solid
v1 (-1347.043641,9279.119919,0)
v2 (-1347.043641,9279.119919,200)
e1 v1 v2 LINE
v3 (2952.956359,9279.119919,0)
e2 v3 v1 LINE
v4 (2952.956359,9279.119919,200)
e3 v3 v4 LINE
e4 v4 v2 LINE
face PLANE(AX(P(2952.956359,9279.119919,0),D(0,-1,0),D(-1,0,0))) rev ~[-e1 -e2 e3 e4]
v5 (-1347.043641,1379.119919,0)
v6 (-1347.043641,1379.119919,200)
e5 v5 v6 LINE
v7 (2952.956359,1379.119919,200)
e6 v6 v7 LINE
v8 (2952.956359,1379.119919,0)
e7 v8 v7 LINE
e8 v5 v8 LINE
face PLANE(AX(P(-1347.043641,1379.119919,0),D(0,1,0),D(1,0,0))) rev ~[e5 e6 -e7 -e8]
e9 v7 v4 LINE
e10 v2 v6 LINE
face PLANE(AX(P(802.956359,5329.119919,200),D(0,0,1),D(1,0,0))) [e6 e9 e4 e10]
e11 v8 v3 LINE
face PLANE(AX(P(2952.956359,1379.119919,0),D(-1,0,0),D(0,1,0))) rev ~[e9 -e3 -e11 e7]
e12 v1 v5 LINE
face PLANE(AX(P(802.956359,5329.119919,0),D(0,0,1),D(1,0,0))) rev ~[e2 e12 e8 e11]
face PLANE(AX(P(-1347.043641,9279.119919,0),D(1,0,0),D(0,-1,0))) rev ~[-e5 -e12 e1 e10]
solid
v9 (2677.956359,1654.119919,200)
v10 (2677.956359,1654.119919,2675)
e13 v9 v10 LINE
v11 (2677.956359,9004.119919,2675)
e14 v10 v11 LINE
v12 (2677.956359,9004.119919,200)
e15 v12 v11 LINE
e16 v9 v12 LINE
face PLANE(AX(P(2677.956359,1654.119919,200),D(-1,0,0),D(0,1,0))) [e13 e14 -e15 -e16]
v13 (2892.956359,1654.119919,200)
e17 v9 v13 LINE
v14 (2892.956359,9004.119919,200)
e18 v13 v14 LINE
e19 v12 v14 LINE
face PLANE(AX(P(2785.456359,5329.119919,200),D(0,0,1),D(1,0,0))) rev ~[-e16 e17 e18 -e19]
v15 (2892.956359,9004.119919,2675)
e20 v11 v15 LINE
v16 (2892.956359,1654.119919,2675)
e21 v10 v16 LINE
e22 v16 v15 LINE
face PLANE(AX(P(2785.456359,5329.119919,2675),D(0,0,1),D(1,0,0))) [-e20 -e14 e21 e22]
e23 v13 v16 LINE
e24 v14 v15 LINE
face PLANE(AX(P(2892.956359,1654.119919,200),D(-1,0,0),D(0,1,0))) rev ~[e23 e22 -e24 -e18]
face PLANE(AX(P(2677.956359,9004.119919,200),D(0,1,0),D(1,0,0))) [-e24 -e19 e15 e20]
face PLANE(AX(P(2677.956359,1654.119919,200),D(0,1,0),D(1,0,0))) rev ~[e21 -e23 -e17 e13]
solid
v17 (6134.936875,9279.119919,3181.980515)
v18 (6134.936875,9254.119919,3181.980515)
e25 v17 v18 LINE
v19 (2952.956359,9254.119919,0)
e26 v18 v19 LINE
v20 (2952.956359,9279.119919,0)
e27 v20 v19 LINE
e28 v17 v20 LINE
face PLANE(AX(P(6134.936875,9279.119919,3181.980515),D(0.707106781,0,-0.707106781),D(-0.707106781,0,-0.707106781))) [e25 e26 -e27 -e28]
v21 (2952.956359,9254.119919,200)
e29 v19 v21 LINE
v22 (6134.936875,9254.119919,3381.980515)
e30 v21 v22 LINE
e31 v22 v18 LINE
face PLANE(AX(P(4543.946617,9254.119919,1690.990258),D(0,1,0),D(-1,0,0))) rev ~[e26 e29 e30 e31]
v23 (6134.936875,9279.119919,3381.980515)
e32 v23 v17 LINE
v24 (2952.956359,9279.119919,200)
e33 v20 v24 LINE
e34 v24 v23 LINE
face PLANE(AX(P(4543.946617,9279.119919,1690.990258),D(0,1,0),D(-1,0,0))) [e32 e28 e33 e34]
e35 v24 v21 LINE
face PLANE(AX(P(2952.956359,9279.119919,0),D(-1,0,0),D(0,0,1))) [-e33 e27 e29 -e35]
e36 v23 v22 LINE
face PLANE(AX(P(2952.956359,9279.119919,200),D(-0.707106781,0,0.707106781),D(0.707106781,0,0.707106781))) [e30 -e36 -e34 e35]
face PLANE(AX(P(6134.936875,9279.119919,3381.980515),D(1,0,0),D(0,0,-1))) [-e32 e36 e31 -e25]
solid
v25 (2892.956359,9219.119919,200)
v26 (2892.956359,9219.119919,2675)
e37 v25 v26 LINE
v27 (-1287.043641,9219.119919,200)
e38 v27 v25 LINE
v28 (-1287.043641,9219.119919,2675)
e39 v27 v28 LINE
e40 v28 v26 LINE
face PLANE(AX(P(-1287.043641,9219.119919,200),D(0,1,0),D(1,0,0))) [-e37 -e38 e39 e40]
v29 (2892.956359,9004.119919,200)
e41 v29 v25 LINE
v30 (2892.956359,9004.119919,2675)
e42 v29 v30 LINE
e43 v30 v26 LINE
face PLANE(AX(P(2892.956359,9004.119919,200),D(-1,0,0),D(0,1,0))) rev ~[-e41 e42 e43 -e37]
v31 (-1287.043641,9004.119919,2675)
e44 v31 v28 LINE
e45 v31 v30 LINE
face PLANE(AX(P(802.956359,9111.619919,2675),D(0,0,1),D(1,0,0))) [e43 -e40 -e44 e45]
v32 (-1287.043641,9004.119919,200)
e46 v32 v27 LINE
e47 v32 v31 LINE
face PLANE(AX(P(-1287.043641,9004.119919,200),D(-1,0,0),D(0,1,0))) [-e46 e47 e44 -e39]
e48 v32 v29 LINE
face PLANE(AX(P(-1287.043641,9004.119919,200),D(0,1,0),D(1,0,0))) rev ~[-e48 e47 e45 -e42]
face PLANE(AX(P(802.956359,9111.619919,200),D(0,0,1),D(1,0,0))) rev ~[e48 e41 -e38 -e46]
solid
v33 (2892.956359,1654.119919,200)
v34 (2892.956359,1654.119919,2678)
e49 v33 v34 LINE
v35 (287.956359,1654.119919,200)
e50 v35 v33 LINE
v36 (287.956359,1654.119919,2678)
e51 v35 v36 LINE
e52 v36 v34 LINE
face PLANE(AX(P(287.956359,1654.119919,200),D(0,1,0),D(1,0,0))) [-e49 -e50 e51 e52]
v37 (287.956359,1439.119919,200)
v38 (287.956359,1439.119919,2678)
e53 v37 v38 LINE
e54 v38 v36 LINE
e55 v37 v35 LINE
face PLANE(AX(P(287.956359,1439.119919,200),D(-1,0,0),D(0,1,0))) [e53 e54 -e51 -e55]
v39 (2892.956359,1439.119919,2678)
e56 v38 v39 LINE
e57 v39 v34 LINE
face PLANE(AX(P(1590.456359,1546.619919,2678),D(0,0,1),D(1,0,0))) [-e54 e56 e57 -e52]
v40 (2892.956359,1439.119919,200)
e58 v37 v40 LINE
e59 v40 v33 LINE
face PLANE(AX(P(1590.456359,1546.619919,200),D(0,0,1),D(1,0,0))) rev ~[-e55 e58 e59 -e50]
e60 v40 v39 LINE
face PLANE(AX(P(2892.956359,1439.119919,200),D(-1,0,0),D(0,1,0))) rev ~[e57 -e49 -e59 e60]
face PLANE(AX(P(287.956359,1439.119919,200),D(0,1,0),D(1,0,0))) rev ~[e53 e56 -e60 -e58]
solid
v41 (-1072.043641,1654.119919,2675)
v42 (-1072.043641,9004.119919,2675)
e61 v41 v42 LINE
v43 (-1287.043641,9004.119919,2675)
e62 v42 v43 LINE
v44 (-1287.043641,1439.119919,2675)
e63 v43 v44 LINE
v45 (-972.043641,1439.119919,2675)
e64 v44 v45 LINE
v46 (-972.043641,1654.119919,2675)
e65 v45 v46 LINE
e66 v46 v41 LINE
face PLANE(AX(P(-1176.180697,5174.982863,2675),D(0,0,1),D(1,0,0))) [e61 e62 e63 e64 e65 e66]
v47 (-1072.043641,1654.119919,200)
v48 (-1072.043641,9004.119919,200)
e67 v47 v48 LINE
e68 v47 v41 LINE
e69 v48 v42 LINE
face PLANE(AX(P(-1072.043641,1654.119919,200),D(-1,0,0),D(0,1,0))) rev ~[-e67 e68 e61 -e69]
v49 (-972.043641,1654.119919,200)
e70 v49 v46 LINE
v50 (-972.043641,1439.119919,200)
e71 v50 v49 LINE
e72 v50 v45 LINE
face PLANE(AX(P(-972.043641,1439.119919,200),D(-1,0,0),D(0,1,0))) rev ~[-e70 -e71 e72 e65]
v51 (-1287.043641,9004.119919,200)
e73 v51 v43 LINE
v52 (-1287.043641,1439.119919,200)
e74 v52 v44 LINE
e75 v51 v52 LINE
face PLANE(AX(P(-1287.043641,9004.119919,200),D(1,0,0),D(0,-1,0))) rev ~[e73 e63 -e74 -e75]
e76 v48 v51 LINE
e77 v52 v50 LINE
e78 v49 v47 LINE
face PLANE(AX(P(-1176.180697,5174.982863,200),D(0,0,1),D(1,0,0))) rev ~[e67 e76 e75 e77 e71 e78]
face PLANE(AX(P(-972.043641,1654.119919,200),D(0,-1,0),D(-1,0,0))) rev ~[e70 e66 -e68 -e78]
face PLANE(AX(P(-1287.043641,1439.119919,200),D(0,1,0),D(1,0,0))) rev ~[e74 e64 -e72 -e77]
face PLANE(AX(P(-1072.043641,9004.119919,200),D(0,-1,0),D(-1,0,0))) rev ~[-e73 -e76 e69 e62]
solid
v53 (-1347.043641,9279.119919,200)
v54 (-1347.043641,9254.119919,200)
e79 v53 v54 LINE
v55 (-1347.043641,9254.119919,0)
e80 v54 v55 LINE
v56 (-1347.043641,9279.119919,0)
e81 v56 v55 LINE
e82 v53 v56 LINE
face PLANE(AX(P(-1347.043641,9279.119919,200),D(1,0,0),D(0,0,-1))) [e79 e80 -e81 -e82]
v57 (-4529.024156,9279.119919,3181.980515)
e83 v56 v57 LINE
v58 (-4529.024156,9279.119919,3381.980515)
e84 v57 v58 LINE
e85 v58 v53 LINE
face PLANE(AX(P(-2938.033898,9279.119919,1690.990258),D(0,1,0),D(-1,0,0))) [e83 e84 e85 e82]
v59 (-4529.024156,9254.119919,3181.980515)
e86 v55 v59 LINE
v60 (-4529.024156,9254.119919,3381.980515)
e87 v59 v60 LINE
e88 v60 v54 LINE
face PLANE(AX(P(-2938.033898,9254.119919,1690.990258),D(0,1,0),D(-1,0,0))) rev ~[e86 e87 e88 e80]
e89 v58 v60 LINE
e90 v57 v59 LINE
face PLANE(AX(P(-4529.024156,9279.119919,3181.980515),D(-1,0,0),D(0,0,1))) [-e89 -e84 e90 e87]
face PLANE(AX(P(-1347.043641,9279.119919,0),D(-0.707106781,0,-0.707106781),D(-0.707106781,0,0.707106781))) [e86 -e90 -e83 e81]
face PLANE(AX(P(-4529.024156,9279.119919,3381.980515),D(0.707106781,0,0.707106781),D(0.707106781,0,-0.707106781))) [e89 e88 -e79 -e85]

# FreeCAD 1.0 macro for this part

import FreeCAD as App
import Part
import Sketcher
Q = App.Units.Quantity


def add_polygon(sketch, points):
    """Adds a closed chain of lines whose ends are joined by coincident constraints."""
    first, n = sketch.GeometryCount, len(points)
    for a, b in zip(points, points[1:] + points[:1]):
        sketch.addGeometry(Part.LineSegment(App.Vector(*a, 0), App.Vector(*b, 0)), False)
    for i in range(n):
        sketch.addConstraint(Sketcher.Constraint("Coincident", first + i, 2, first + (i + 1) % n, 1))

doc = App.newDocument("Part")
body = doc.addObject("PartDesign::Body", "Body")

sketch1 = body.newObject("Sketcher::SketchObject", "Sketch")
sketch1.AttachmentSupport = (doc.getObject("XY_Plane"), [""])
sketch1.MapMode = "FlatFace"
add_polygon(sketch1, [(-1347.043641, 1379.119919), (2952.956359, 1379.119919), (2952.956359, 9279.119919), (-1347.043641, 9279.119919)])
sketch1.addConstraint([
    Sketcher.Constraint("Horizontal", 0),
    Sketcher.Constraint("Vertical", 1),
    Sketcher.Constraint("Horizontal", 2),
    Sketcher.Constraint("Vertical", 3),
    Sketcher.Constraint("DistanceX", 0, 1, 0, 2, Q("4300 mm")),
    Sketcher.Constraint("DistanceY", 1, 1, 1, 2, Q("7900 mm")),
    Sketcher.Constraint("DistanceX", -1, 1, 0, 2, Q("2952.956359 mm")),
    Sketcher.Constraint("DistanceY", -1, 1, 0, 2, Q("1379.119919 mm")),
])
pad1 = body.newObject("PartDesign::Pad", "Pad")
pad1.Profile = sketch1
pad1.Length = 200
body2 = doc.addObject("PartDesign::Body", "Body001")

sketch2 = body2.newObject("Sketcher::SketchObject", "Sketch001")
sketch2.AttachmentSupport = (doc.getObject("XY_Plane001"), [""])
sketch2.MapMode = "FlatFace"
sketch2.AttachmentOffset = App.Placement(App.Vector(0, 0, 200), App.Rotation())
add_polygon(sketch2, [(2677.956359, 9004.119919), (2677.956359, 1654.119919), (2892.956359, 1654.119919), (2892.956359, 9004.119919)])
sketch2.addConstraint([
    Sketcher.Constraint("Vertical", 0),
    Sketcher.Constraint("Horizontal", 1),
    Sketcher.Constraint("Vertical", 2),
    Sketcher.Constraint("Horizontal", 3),
    Sketcher.Constraint("DistanceX", 1, 1, 1, 2, Q("215 mm")),
    Sketcher.Constraint("DistanceY", 0, 2, 0, 1, Q("7350 mm")),
    Sketcher.Constraint("DistanceX", -1, 1, 0, 2, Q("2677.956359 mm")),
    Sketcher.Constraint("DistanceY", -1, 1, 0, 2, Q("1654.119919 mm")),
])
pad2 = body2.newObject("PartDesign::Pad", "Pad001")
pad2.Profile = sketch2
pad2.Length = 2475
body3 = doc.addObject("PartDesign::Body", "Body002")

sketch3 = body3.newObject("Sketcher::SketchObject", "Sketch002")
sketch3.AttachmentSupport = (doc.getObject("XY_Plane002"), [""])
sketch3.MapMode = "FlatFace"
sketch3.AttachmentOffset = App.Placement(App.Vector(0, 0, 200), App.Rotation())
add_polygon(sketch3, [(-1072.043641, 9004.119919), (-1287.043641, 9004.119919), (-1287.043641, 1439.119919), (-972.043641, 1439.119919), (-972.043641, 1654.119919), (-1072.043641, 1654.119919)])
sketch3.addConstraint([
    Sketcher.Constraint("Horizontal", 0),
    Sketcher.Constraint("Vertical", 1),
    Sketcher.Constraint("Horizontal", 2),
    Sketcher.Constraint("Vertical", 3),
    Sketcher.Constraint("Horizontal", 4),
    Sketcher.Constraint("Vertical", 5),
    Sketcher.Constraint("Equal", 0, 3),
    Sketcher.Constraint("DistanceX", 0, 2, 0, 1, Q("215 mm")),
    Sketcher.Constraint("DistanceX", 2, 1, 2, 2, Q("315 mm")),
    Sketcher.Constraint("DistanceY", 1, 2, 1, 1, Q("7565 mm")),
    Sketcher.Constraint("DistanceX", 0, 2, -1, 1, Q("1287.043641 mm")),
    Sketcher.Constraint("DistanceY", -1, 1, 0, 2, Q("9004.119919 mm")),
])
pad3 = body3.newObject("PartDesign::Pad", "Pad002")
pad3.Profile = sketch3
pad3.Length = 2475
body4 = doc.addObject("PartDesign::Body", "Body003")

sketch4 = body4.newObject("Sketcher::SketchObject", "Sketch003")
sketch4.AttachmentSupport = (doc.getObject("XY_Plane003"), [""])
sketch4.MapMode = "FlatFace"
sketch4.AttachmentOffset = App.Placement(App.Vector(0, 0, 200), App.Rotation())
add_polygon(sketch4, [(-1287.043641, 9219.119919), (-1287.043641, 9004.119919), (2892.956359, 9004.119919), (2892.956359, 9219.119919)])
sketch4.addConstraint([
    Sketcher.Constraint("Vertical", 0),
    Sketcher.Constraint("Horizontal", 1),
    Sketcher.Constraint("Vertical", 2),
    Sketcher.Constraint("Horizontal", 3),
    Sketcher.Constraint("DistanceX", 1, 1, 1, 2, Q("4180 mm")),
    Sketcher.Constraint("DistanceY", 0, 2, 0, 1, Q("215 mm")),
    Sketcher.Constraint("DistanceX", 0, 2, -1, 1, Q("1287.043641 mm")),
    Sketcher.Constraint("DistanceY", -1, 1, 0, 2, Q("9004.119919 mm")),
])
pad4 = body4.newObject("PartDesign::Pad", "Pad003")
pad4.Profile = sketch4
pad4.Length = 2475
body5 = doc.addObject("PartDesign::Body", "Body004")

sketch5 = body5.newObject("Sketcher::SketchObject", "Sketch004")
sketch5.AttachmentSupport = (doc.getObject("XZ_Plane004"), [""])
sketch5.MapMode = "FlatFace"
sketch5.AttachmentOffset = App.Placement(App.Vector(0, 0, -9279.119919), App.Rotation())
add_polygon(sketch5, [(6134.936875, 3181.980515), (2952.956359, 0), (2952.956359, 200), (6134.936875, 3381.980515)])
sketch5.addConstraint([
    Sketcher.Constraint("Vertical", 1),
    Sketcher.Constraint("Vertical", 3),
    Sketcher.Constraint("PointOnObject", 0, 2, -1),
    Sketcher.Constraint("Parallel", 0, 2),
    Sketcher.Constraint("DistanceY", 1, 1, 1, 2, Q("200 mm")),
    Sketcher.Constraint("Angle", 0, Q("-135 deg")),
    Sketcher.Constraint("Distance", 0, Q("4500 mm")),
    Sketcher.Constraint("DistanceX", -1, 1, 0, 2, Q("2952.956359 mm")),
])
pad5 = body5.newObject("PartDesign::Pad", "Pad004")
pad5.Profile = sketch5
pad5.Length = 25
body6 = doc.addObject("PartDesign::Body", "Body005")

sketch6 = body6.newObject("Sketcher::SketchObject", "Sketch005")
sketch6.AttachmentSupport = (doc.getObject("XZ_Plane005"), [""])
sketch6.MapMode = "FlatFace"
sketch6.AttachmentOffset = App.Placement(App.Vector(0, 0, -9279.119919), App.Rotation())
add_polygon(sketch6, [(-1347.043641, 200), (-1347.043641, 0), (-4529.024156, 3181.980515), (-4529.024156, 3381.980515)])
sketch6.addConstraint([
    Sketcher.Constraint("Vertical", 0),
    Sketcher.Constraint("Vertical", 2),
    Sketcher.Constraint("PointOnObject", 0, 2, -1),
    Sketcher.Constraint("Parallel", 1, 3),
    Sketcher.Constraint("DistanceY", 0, 2, 0, 1, Q("200 mm")),
    Sketcher.Constraint("Angle", 1, Q("135 deg")),
    Sketcher.Constraint("Distance", 1, Q("4500 mm")),
    Sketcher.Constraint("DistanceX", 0, 2, -1, 1, Q("1347.043641 mm")),
])
pad6 = body6.newObject("PartDesign::Pad", "Pad005")
pad6.Profile = sketch6
pad6.Length = 25
body7 = doc.addObject("PartDesign::Body", "Body006")

sketch7 = body7.newObject("Sketcher::SketchObject", "Sketch006")
sketch7.AttachmentSupport = (doc.getObject("XY_Plane006"), [""])
sketch7.MapMode = "FlatFace"
sketch7.AttachmentOffset = App.Placement(App.Vector(0, 0, 200), App.Rotation())
add_polygon(sketch7, [(287.956359, 1654.119919), (287.956359, 1439.119919), (2892.956359, 1439.119919), (2892.956359, 1654.119919)])
sketch7.addConstraint([
    Sketcher.Constraint("Vertical", 0),
    Sketcher.Constraint("Horizontal", 1),
    Sketcher.Constraint("Vertical", 2),
    Sketcher.Constraint("Horizontal", 3),
    Sketcher.Constraint("DistanceX", 1, 1, 1, 2, Q("2605 mm")),
    Sketcher.Constraint("DistanceY", 0, 2, 0, 1, Q("215 mm")),
    Sketcher.Constraint("DistanceX", -1, 1, 0, 2, Q("287.956359 mm")),
    Sketcher.Constraint("DistanceY", -1, 1, 0, 2, Q("1439.119919 mm")),
])
pad7 = body7.newObject("PartDesign::Pad", "Pad006")
pad7.Profile = sketch7
pad7.Length = 2478

doc.recompute()
